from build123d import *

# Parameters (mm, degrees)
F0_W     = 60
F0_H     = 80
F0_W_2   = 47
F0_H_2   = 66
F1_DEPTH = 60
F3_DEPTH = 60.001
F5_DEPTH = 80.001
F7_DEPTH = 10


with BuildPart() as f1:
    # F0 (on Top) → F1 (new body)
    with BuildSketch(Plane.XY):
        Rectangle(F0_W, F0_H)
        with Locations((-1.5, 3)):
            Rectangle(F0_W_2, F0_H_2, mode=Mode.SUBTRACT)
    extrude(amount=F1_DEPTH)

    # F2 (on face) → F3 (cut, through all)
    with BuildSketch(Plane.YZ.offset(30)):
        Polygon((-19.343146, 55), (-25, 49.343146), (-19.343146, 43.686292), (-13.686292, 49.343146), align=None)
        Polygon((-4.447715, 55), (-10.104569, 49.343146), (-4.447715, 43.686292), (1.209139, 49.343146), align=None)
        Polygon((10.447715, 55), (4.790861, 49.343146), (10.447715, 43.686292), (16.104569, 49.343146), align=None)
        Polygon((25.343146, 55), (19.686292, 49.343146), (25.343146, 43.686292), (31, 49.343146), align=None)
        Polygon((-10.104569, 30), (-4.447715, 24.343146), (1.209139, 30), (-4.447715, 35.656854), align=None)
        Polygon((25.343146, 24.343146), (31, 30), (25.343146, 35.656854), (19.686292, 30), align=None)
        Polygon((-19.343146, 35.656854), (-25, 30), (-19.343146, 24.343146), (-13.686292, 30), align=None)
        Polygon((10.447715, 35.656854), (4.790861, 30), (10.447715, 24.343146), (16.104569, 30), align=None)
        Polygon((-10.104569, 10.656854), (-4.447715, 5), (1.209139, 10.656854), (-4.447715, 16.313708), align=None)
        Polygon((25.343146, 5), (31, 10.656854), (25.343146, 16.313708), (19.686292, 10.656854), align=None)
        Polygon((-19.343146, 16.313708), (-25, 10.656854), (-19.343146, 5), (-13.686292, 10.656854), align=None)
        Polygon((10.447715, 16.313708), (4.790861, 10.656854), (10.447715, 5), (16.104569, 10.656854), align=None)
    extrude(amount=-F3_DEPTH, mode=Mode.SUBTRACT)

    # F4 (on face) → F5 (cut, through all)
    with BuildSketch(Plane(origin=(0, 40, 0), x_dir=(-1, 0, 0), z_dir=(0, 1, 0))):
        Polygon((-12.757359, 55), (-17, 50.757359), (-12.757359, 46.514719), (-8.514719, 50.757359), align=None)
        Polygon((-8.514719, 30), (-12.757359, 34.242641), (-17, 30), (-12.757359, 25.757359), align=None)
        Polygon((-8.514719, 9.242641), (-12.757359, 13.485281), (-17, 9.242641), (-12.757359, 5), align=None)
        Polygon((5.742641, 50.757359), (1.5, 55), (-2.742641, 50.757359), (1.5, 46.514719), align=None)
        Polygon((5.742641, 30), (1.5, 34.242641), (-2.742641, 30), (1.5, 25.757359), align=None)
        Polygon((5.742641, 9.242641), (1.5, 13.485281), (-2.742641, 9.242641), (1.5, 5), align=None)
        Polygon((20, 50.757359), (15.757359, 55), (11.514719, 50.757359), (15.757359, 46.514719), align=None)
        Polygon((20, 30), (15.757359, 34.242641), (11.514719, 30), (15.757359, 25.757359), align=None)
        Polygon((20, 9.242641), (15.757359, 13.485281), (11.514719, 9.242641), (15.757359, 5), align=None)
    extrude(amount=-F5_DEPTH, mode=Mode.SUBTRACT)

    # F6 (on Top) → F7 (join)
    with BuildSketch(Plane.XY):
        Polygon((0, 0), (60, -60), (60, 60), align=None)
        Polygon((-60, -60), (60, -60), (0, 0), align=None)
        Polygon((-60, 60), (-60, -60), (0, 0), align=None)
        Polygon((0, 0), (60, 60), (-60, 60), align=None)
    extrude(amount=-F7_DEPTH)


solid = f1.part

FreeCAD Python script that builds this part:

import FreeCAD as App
import Part
import Sketcher

V = App.Vector


def add_polygon(sketch, points):
    """Adds a closed chain of lines whose ends are joined by coincident constraints."""
    first, n = sketch.GeometryCount, len(points)
    for a, b in zip(points, points[1:] + points[:1]):
        sketch.addGeometry(Part.LineSegment(App.Vector(*a, 0), App.Vector(*b, 0)), False)
    for i in range(n):
        sketch.addConstraint(Sketcher.Constraint("Coincident", first + i, 2, first + (i + 1) % n, 1))

doc = App.newDocument("Part")
body = doc.addObject("PartDesign::Body", "Body")

# Sketch on XY plane
sketch1 = body.newObject("Sketcher::SketchObject", "Sketch")
sketch1.AttachmentSupport = (doc.getObject("XY_Plane"), [""])
sketch1.MapMode = "FlatFace"
add_polygon(sketch1, [(-30, 40), (-30, -40), (30, -40), (30, 40)])  # lines 0-3
add_polygon(sketch1, [(22, -30), (-25, -30), (-25, 36), (22, 36)])  # lines 4-7
sketch1.addConstraint([
    Sketcher.Constraint("Vertical", 0),
    Sketcher.Constraint("Horizontal", 1),
    Sketcher.Constraint("Vertical", 2),
    Sketcher.Constraint("Horizontal", 3),
    Sketcher.Constraint("Horizontal", 4),
    Sketcher.Constraint("Vertical", 5),
    Sketcher.Constraint("Horizontal", 6),
    Sketcher.Constraint("Vertical", 7),
    Sketcher.Constraint("Symmetric", 0, 2, 2, 2, -1, 1),
    Sketcher.Constraint("DistanceX", 1, 1, 1, 2, 60.0),
    Sketcher.Constraint("DistanceX", 4, 2, 4, 1, 47.0),
    Sketcher.Constraint("DistanceY", 0, 2, 0, 1, 80.0),
    Sketcher.Constraint("DistanceY", 5, 1, 5, 2, 66.0),
    Sketcher.Constraint("DistanceX", 4, 2, -1, 1, 25.0),
    Sketcher.Constraint("DistanceY", 4, 2, -1, 1, 30.0),
])
pad1 = body.newObject("PartDesign::Pad", "Pad")
pad1.Profile = sketch1
pad1.Length = 60

# Sketch on YZ plane
sketch2 = body.newObject("Sketcher::SketchObject", "Sketch001")
sketch2.AttachmentSupport = (doc.getObject("YZ_Plane"), [""])
sketch2.MapMode = "FlatFace"
sketch2.AttachmentOffset = App.Placement(V(0, 0, 30), App.Rotation())
add_polygon(sketch2, [(-19.343146, 55), (-25, 49.343146), (-19.343146, 43.686292), (-13.686292, 49.343146)])  # lines 0-3
add_polygon(sketch2, [(-4.447715, 55), (-10.104569, 49.343146), (-4.447715, 43.686292), (1.209139, 49.343146)])  # lines 4-7
add_polygon(sketch2, [(10.447715, 55), (4.790861, 49.343146), (10.447715, 43.686292), (16.104569, 49.343146)])  # lines 8-11
add_polygon(sketch2, [(25.343146, 55), (19.686292, 49.343146), (25.343146, 43.686292), (31, 49.343146)])  # lines 12-15
add_polygon(sketch2, [(-10.104569, 30), (-4.447715, 24.343146), (1.209139, 30), (-4.447715, 35.656854)])  # lines 16-19
add_polygon(sketch2, [(25.343146, 24.343146), (31, 30), (25.343146, 35.656854), (19.686292, 30)])  # lines 20-23
add_polygon(sketch2, [(-19.343146, 35.656854), (-25, 30), (-19.343146, 24.343146), (-13.686292, 30)])  # lines 24-27
add_polygon(sketch2, [(10.447715, 35.656854), (4.790861, 30), (10.447715, 24.343146), (16.104569, 30)])  # lines 28-31
add_polygon(sketch2, [(-10.104569, 10.656854), (-4.447715, 5), (1.209139, 10.656854), (-4.447715, 16.313708)])  # lines 32-35
add_polygon(sketch2, [(25.343146, 5), (31, 10.656854), (25.343146, 16.313708), (19.686292, 10.656854)])  # lines 36-39
add_polygon(sketch2, [(-19.343146, 16.313708), (-25, 10.656854), (-19.343146, 5), (-13.686292, 10.656854)])  # lines 40-43
add_polygon(sketch2, [(10.447715, 16.313708), (4.790861, 10.656854), (10.447715, 5), (16.104569, 10.656854)])  # lines 44-47
sketch2.addConstraint([
    Sketcher.Constraint("Perpendicular", 0, 1),
    Sketcher.Constraint("Perpendicular", 1, 2),
    Sketcher.Constraint("Perpendicular", 2, 3),
    Sketcher.Constraint("Perpendicular", 3, 4),
    Sketcher.Constraint("Perpendicular", 4, 5),
    Sketcher.Constraint("Perpendicular", 5, 6),
    Sketcher.Constraint("Perpendicular", 6, 7),
    Sketcher.Constraint("Perpendicular", 7, 8),
    Sketcher.Constraint("Perpendicular", 8, 9),
    Sketcher.Constraint("Perpendicular", 9, 10),
    Sketcher.Constraint("Perpendicular", 10, 11),
    Sketcher.Constraint("Perpendicular", 11, 12),
    Sketcher.Constraint("Perpendicular", 12, 13),
    Sketcher.Constraint("Perpendicular", 13, 14),
    Sketcher.Constraint("Perpendicular", 14, 15),
    Sketcher.Constraint("Parallel", 15, 16),
    Sketcher.Constraint("Perpendicular", 16, 17),
    Sketcher.Constraint("Perpendicular", 17, 18),
    Sketcher.Constraint("Perpendicular", 18, 19),
    Sketcher.Constraint("Parallel", 19, 20),
    Sketcher.Constraint("Perpendicular", 20, 21),
    Sketcher.Constraint("Perpendicular", 21, 22),
    Sketcher.Constraint("Perpendicular", 22, 23),
    Sketcher.Constraint("Perpendicular", 23, 24),
    Sketcher.Constraint("Perpendicular", 24, 25),
    Sketcher.Constraint("Perpendicular", 25, 26),
    Sketcher.Constraint("Perpendicular", 26, 27),
    Sketcher.Constraint("Perpendicular", 27, 28),
    Sketcher.Constraint("Perpendicular", 28, 29),
    Sketcher.Constraint("Perpendicular", 29, 30),
    Sketcher.Constraint("Perpendicular", 30, 31),
    Sketcher.Constraint("Parallel", 31, 32),
    Sketcher.Constraint("Perpendicular", 32, 33),
    Sketcher.Constraint("Perpendicular", 33, 34),
    Sketcher.Constraint("Perpendicular", 34, 35),
    Sketcher.Constraint("Parallel", 35, 36),
    Sketcher.Constraint("Perpendicular", 36, 37),
    Sketcher.Constraint("Perpendicular", 37, 38),
    Sketcher.Constraint("Perpendicular", 38, 39),
    Sketcher.Constraint("Perpendicular", 39, 40),
    Sketcher.Constraint("Perpendicular", 40, 41),
    Sketcher.Constraint("Perpendicular", 41, 42),
    Sketcher.Constraint("Perpendicular", 42, 43),
    Sketcher.Constraint("Perpendicular", 43, 44),
    Sketcher.Constraint("Perpendicular", 44, 45),
    Sketcher.Constraint("Perpendicular", 45, 46),
    Sketcher.Constraint("Perpendicular", 46, 47),
    Sketcher.Constraint("Horizontal", 0, 2, 2, 2),
    Sketcher.Constraint("Horizontal", 2, 2, 4, 2),
    Sketcher.Constraint("Horizontal", 1, 2, 5, 2),
    Sketcher.Constraint("Horizontal", 4, 2, 6, 2),
    Sketcher.Constraint("Horizontal", 6, 2, 8, 2),
    Sketcher.Constraint("Horizontal", 5, 2, 9, 2),
    Sketcher.Constraint("Horizontal", 8, 2, 10, 2),
    Sketcher.Constraint("Horizontal", 10, 2, 12, 2),
    Sketcher.Constraint("Horizontal", 9, 2, 13, 2),
    Sketcher.Constraint("Horizontal", 12, 2, 14, 2),
    Sketcher.Constraint("Horizontal", 17, 2, 19, 2),
    Sketcher.Constraint("Horizontal", 19, 2, 20, 2),
    Sketcher.Constraint("Horizontal", 18, 2, 21, 2),
    Sketcher.Constraint("Horizontal", 20, 2, 22, 2),
    Sketcher.Constraint("Horizontal", 22, 2, 24, 2),
    Sketcher.Constraint("Horizontal", 23, 2, 25, 2),
    Sketcher.Constraint("Horizontal", 24, 2, 26, 2),
    Sketcher.Constraint("Horizontal", 26, 2, 28, 2),
    Sketcher.Constraint("Horizontal", 25, 2, 29, 2),
    Sketcher.Constraint("Horizontal", 28, 2, 30, 2),
    Sketcher.Constraint("Horizontal", 33, 2, 35, 2),
    Sketcher.Constraint("Horizontal", 35, 2, 36, 2),
    Sketcher.Constraint("Horizontal", 34, 2, 37, 2),
    Sketcher.Constraint("Horizontal", 36, 2, 38, 2),
    Sketcher.Constraint("Horizontal", 38, 2, 40, 2),
    Sketcher.Constraint("Horizontal", 39, 2, 41, 2),
    Sketcher.Constraint("Horizontal", 40, 2, 42, 2),
    Sketcher.Constraint("Horizontal", 42, 2, 44, 2),
    Sketcher.Constraint("Horizontal", 41, 2, 45, 2),
    Sketcher.Constraint("Horizontal", 44, 2, 46, 2),
    Sketcher.Constraint("Vertical", 1, 2, 3, 2),
    Sketcher.Constraint("Vertical", 7, 2, 16, 2),
    Sketcher.Constraint("Vertical", 6, 2, 17, 2),
    Sketcher.Constraint("Vertical", 14, 2, 20, 2),
    Sketcher.Constraint("Vertical", 0, 2, 24, 2),
    Sketcher.Constraint("Vertical", 8, 2, 28, 2),
    Sketcher.Constraint("Vertical", 18, 2, 32, 2),
    Sketcher.Constraint("Vertical", 17, 2, 33, 2),
    Sketcher.Constraint("Vertical", 20, 2, 36, 2),
    Sketcher.Constraint("Vertical", 24, 2, 40, 2),
    Sketcher.Constraint("Vertical", 28, 2, 44, 2),
    Sketcher.Constraint("Distance", 0, 8.0),
    Sketcher.Constraint("DistanceX", 0, 2, -1, 1, 25.0),
    Sketcher.Constraint("DistanceY", -1, 1, 3, 2, 55.0),
    Sketcher.Constraint("DistanceX", -1, 1, 14, 2, 31.0),
    Sketcher.Constraint("DistanceY", -1, 1, 17, 2, 30.0),
    Sketcher.Constraint("DistanceY", -1, 1, 32, 2, 5.0),
    Sketcher.Constraint("DistanceX", 4, 2, -1, 1, 10.104569),
    Sketcher.Constraint("DistanceX", -1, 1, 8, 2, 4.790861),
])
pocket1 = body.newObject("PartDesign::Pocket", "Pocket")
pocket1.Profile = sketch2
pocket1.Type = "ThroughAll"

# Sketch on XZ plane
sketch3 = body.newObject("Sketcher::SketchObject", "Sketch002")
sketch3.AttachmentSupport = (doc.getObject("XZ_Plane"), [""])
sketch3.MapMode = "FlatFace"
sketch3.AttachmentOffset = App.Placement(V(0, 0, -40), App.Rotation())
add_polygon(sketch3, [(12.757359, 55), (17, 50.757359), (12.757359, 46.514719), (8.514719, 50.757359)])  # lines 0-3
add_polygon(sketch3, [(8.514719, 30), (12.757359, 34.242641), (17, 30), (12.757359, 25.757359)])  # lines 4-7
add_polygon(sketch3, [(8.514719, 9.242641), (12.757359, 13.485281), (17, 9.242641), (12.757359, 5)])  # lines 8-11
add_polygon(sketch3, [(-5.742641, 50.757359), (-1.5, 55), (2.742641, 50.757359), (-1.5, 46.514719)])  # lines 12-15
add_polygon(sketch3, [(-5.742641, 30), (-1.5, 34.242641), (2.742641, 30), (-1.5, 25.757359)])  # lines 16-19
add_polygon(sketch3, [(-5.742641, 9.242641), (-1.5, 13.485281), (2.742641, 9.242641), (-1.5, 5)])  # lines 20-23
add_polygon(sketch3, [(-20, 50.757359), (-15.757359, 55), (-11.514719, 50.757359), (-15.757359, 46.514719)])  # lines 24-27
add_polygon(sketch3, [(-20, 30), (-15.757359, 34.242641), (-11.514719, 30), (-15.757359, 25.757359)])  # lines 28-31
add_polygon(sketch3, [(-20, 9.242641), (-15.757359, 13.485281), (-11.514719, 9.242641), (-15.757359, 5)])  # lines 32-35
sketch3.addConstraint([
    Sketcher.Constraint("Perpendicular", 0, 1),
    Sketcher.Constraint("Perpendicular", 1, 2),
    Sketcher.Constraint("Perpendicular", 2, 3),
    Sketcher.Constraint("Parallel", 3, 4),
    Sketcher.Constraint("Perpendicular", 4, 5),
    Sketcher.Constraint("Perpendicular", 5, 6),
    Sketcher.Constraint("Perpendicular", 6, 7),
    Sketcher.Constraint("Perpendicular", 7, 8),
    Sketcher.Constraint("Perpendicular", 8, 9),
    Sketcher.Constraint("Perpendicular", 9, 10),
    Sketcher.Constraint("Perpendicular", 10, 11),
    Sketcher.Constraint("Perpendicular", 11, 12),
    Sketcher.Constraint("Perpendicular", 12, 13),
    Sketcher.Constraint("Perpendicular", 13, 14),
    Sketcher.Constraint("Perpendicular", 14, 15),
    Sketcher.Constraint("Perpendicular", 15, 16),
    Sketcher.Constraint("Perpendicular", 16, 17),
    Sketcher.Constraint("Perpendicular", 17, 18),
    Sketcher.Constraint("Perpendicular", 18, 19),
    Sketcher.Constraint("Perpendicular", 19, 20),
    Sketcher.Constraint("Perpendicular", 20, 21),
    Sketcher.Constraint("Perpendicular", 21, 22),
    Sketcher.Constraint("Perpendicular", 22, 23),
    Sketcher.Constraint("Perpendicular", 23, 24),
    Sketcher.Constraint("Perpendicular", 24, 25),
    Sketcher.Constraint("Perpendicular", 25, 26),
    Sketcher.Constraint("Perpendicular", 26, 27),
    Sketcher.Constraint("Perpendicular", 27, 28),
    Sketcher.Constraint("Perpendicular", 28, 29),
    Sketcher.Constraint("Perpendicular", 29, 30),
    Sketcher.Constraint("Perpendicular", 30, 31),
    Sketcher.Constraint("Perpendicular", 31, 32),
    Sketcher.Constraint("Perpendicular", 32, 33),
    Sketcher.Constraint("Perpendicular", 33, 34),
    Sketcher.Constraint("Perpendicular", 34, 35),
    Sketcher.Constraint("Horizontal", 0, 2, 2, 2),
    Sketcher.Constraint("Horizontal", 5, 2, 7, 2),
    Sketcher.Constraint("Horizontal", 9, 2, 11, 2),
    Sketcher.Constraint("Horizontal", 3, 2, 12, 2),
    Sketcher.Constraint("Horizontal", 2, 2, 13, 2),
    Sketcher.Constraint("Horizontal", 1, 2, 14, 2),
    Sketcher.Constraint("Horizontal", 4, 2, 16, 2),
    Sketcher.Constraint("Horizontal", 7, 2, 17, 2),
    Sketcher.Constraint("Horizontal", 6, 2, 18, 2),
    Sketcher.Constraint("Horizontal", 8, 2, 20, 2),
    Sketcher.Constraint("Horizontal", 11, 2, 21, 2),
    Sketcher.Constraint("Horizontal", 10, 2, 22, 2),
    Sketcher.Constraint("Horizontal", 12, 2, 24, 2),
    Sketcher.Constraint("Horizontal", 15, 2, 25, 2),
    Sketcher.Constraint("Horizontal", 14, 2, 26, 2),
    Sketcher.Constraint("Horizontal", 16, 2, 28, 2),
    Sketcher.Constraint("Horizontal", 19, 2, 29, 2),
    Sketcher.Constraint("Horizontal", 18, 2, 30, 2),
    Sketcher.Constraint("Horizontal", 20, 2, 32, 2),
    Sketcher.Constraint("Horizontal", 23, 2, 33, 2),
    Sketcher.Constraint("Horizontal", 22, 2, 34, 2),
    Sketcher.Constraint("Vertical", 1, 2, 3, 2),
    Sketcher.Constraint("Vertical", 3, 2, 4, 2),
    Sketcher.Constraint("Vertical", 0, 2, 5, 2),
    Sketcher.Constraint("Vertical", 6, 2, 8, 2),
    Sketcher.Constraint("Vertical", 5, 2, 9, 2),
    Sketcher.Constraint("Vertical", 14, 2, 16, 2),
    Sketcher.Constraint("Vertical", 18, 2, 20, 2),
    Sketcher.Constraint("Vertical", 26, 2, 28, 2),
    Sketcher.Constraint("Vertical", 30, 2, 32, 2),
    Sketcher.Constraint("Distance", 0, 6.0),
    Sketcher.Constraint("DistanceX", -1, 1, 0, 2, 17.0),
    Sketcher.Constraint("DistanceY", -1, 1, 3, 2, 55.0),
    Sketcher.Constraint("DistanceY", -1, 1, 5, 2, 30.0),
    Sketcher.Constraint("DistanceY", -1, 1, 10, 2, 5.0),
    Sketcher.Constraint("DistanceX", 27, 2, -1, 1, 20.0),
    Sketcher.Constraint("DistanceX", 12, 2, -1, 1, 1.5),
])
pocket2 = body.newObject("PartDesign::Pocket", "Pocket001")
pocket2.Profile = sketch3
pocket2.Type = "ThroughAll"
pocket2.Reversed = True

# Sketch on XY plane
sketch4 = body.newObject("Sketcher::SketchObject", "Sketch003")
sketch4.AttachmentSupport = (doc.getObject("XY_Plane"), [""])
sketch4.MapMode = "FlatFace"
add_polygon(sketch4, [(60, -60), (60, 60), (-60, 60), (-60, -60)])  # lines 0-3
sketch4.addConstraint([
    Sketcher.Constraint("Vertical", 0),
    Sketcher.Constraint("Horizontal", 1),
    Sketcher.Constraint("Vertical", 2),
    Sketcher.Constraint("Horizontal", 3),
    Sketcher.Constraint("Symmetric", 0, 2, 2, 2, -1, 1),
    Sketcher.Constraint("Equal", 3, 0),
    Sketcher.Constraint("DistanceX", 1, 2, 1, 1, 120.0),
])
pad2 = body.newObject("PartDesign::Pad", "Pad001")
pad2.Profile = sketch4
pad2.Length = 10
pad2.Reversed = True

doc.recompute()
